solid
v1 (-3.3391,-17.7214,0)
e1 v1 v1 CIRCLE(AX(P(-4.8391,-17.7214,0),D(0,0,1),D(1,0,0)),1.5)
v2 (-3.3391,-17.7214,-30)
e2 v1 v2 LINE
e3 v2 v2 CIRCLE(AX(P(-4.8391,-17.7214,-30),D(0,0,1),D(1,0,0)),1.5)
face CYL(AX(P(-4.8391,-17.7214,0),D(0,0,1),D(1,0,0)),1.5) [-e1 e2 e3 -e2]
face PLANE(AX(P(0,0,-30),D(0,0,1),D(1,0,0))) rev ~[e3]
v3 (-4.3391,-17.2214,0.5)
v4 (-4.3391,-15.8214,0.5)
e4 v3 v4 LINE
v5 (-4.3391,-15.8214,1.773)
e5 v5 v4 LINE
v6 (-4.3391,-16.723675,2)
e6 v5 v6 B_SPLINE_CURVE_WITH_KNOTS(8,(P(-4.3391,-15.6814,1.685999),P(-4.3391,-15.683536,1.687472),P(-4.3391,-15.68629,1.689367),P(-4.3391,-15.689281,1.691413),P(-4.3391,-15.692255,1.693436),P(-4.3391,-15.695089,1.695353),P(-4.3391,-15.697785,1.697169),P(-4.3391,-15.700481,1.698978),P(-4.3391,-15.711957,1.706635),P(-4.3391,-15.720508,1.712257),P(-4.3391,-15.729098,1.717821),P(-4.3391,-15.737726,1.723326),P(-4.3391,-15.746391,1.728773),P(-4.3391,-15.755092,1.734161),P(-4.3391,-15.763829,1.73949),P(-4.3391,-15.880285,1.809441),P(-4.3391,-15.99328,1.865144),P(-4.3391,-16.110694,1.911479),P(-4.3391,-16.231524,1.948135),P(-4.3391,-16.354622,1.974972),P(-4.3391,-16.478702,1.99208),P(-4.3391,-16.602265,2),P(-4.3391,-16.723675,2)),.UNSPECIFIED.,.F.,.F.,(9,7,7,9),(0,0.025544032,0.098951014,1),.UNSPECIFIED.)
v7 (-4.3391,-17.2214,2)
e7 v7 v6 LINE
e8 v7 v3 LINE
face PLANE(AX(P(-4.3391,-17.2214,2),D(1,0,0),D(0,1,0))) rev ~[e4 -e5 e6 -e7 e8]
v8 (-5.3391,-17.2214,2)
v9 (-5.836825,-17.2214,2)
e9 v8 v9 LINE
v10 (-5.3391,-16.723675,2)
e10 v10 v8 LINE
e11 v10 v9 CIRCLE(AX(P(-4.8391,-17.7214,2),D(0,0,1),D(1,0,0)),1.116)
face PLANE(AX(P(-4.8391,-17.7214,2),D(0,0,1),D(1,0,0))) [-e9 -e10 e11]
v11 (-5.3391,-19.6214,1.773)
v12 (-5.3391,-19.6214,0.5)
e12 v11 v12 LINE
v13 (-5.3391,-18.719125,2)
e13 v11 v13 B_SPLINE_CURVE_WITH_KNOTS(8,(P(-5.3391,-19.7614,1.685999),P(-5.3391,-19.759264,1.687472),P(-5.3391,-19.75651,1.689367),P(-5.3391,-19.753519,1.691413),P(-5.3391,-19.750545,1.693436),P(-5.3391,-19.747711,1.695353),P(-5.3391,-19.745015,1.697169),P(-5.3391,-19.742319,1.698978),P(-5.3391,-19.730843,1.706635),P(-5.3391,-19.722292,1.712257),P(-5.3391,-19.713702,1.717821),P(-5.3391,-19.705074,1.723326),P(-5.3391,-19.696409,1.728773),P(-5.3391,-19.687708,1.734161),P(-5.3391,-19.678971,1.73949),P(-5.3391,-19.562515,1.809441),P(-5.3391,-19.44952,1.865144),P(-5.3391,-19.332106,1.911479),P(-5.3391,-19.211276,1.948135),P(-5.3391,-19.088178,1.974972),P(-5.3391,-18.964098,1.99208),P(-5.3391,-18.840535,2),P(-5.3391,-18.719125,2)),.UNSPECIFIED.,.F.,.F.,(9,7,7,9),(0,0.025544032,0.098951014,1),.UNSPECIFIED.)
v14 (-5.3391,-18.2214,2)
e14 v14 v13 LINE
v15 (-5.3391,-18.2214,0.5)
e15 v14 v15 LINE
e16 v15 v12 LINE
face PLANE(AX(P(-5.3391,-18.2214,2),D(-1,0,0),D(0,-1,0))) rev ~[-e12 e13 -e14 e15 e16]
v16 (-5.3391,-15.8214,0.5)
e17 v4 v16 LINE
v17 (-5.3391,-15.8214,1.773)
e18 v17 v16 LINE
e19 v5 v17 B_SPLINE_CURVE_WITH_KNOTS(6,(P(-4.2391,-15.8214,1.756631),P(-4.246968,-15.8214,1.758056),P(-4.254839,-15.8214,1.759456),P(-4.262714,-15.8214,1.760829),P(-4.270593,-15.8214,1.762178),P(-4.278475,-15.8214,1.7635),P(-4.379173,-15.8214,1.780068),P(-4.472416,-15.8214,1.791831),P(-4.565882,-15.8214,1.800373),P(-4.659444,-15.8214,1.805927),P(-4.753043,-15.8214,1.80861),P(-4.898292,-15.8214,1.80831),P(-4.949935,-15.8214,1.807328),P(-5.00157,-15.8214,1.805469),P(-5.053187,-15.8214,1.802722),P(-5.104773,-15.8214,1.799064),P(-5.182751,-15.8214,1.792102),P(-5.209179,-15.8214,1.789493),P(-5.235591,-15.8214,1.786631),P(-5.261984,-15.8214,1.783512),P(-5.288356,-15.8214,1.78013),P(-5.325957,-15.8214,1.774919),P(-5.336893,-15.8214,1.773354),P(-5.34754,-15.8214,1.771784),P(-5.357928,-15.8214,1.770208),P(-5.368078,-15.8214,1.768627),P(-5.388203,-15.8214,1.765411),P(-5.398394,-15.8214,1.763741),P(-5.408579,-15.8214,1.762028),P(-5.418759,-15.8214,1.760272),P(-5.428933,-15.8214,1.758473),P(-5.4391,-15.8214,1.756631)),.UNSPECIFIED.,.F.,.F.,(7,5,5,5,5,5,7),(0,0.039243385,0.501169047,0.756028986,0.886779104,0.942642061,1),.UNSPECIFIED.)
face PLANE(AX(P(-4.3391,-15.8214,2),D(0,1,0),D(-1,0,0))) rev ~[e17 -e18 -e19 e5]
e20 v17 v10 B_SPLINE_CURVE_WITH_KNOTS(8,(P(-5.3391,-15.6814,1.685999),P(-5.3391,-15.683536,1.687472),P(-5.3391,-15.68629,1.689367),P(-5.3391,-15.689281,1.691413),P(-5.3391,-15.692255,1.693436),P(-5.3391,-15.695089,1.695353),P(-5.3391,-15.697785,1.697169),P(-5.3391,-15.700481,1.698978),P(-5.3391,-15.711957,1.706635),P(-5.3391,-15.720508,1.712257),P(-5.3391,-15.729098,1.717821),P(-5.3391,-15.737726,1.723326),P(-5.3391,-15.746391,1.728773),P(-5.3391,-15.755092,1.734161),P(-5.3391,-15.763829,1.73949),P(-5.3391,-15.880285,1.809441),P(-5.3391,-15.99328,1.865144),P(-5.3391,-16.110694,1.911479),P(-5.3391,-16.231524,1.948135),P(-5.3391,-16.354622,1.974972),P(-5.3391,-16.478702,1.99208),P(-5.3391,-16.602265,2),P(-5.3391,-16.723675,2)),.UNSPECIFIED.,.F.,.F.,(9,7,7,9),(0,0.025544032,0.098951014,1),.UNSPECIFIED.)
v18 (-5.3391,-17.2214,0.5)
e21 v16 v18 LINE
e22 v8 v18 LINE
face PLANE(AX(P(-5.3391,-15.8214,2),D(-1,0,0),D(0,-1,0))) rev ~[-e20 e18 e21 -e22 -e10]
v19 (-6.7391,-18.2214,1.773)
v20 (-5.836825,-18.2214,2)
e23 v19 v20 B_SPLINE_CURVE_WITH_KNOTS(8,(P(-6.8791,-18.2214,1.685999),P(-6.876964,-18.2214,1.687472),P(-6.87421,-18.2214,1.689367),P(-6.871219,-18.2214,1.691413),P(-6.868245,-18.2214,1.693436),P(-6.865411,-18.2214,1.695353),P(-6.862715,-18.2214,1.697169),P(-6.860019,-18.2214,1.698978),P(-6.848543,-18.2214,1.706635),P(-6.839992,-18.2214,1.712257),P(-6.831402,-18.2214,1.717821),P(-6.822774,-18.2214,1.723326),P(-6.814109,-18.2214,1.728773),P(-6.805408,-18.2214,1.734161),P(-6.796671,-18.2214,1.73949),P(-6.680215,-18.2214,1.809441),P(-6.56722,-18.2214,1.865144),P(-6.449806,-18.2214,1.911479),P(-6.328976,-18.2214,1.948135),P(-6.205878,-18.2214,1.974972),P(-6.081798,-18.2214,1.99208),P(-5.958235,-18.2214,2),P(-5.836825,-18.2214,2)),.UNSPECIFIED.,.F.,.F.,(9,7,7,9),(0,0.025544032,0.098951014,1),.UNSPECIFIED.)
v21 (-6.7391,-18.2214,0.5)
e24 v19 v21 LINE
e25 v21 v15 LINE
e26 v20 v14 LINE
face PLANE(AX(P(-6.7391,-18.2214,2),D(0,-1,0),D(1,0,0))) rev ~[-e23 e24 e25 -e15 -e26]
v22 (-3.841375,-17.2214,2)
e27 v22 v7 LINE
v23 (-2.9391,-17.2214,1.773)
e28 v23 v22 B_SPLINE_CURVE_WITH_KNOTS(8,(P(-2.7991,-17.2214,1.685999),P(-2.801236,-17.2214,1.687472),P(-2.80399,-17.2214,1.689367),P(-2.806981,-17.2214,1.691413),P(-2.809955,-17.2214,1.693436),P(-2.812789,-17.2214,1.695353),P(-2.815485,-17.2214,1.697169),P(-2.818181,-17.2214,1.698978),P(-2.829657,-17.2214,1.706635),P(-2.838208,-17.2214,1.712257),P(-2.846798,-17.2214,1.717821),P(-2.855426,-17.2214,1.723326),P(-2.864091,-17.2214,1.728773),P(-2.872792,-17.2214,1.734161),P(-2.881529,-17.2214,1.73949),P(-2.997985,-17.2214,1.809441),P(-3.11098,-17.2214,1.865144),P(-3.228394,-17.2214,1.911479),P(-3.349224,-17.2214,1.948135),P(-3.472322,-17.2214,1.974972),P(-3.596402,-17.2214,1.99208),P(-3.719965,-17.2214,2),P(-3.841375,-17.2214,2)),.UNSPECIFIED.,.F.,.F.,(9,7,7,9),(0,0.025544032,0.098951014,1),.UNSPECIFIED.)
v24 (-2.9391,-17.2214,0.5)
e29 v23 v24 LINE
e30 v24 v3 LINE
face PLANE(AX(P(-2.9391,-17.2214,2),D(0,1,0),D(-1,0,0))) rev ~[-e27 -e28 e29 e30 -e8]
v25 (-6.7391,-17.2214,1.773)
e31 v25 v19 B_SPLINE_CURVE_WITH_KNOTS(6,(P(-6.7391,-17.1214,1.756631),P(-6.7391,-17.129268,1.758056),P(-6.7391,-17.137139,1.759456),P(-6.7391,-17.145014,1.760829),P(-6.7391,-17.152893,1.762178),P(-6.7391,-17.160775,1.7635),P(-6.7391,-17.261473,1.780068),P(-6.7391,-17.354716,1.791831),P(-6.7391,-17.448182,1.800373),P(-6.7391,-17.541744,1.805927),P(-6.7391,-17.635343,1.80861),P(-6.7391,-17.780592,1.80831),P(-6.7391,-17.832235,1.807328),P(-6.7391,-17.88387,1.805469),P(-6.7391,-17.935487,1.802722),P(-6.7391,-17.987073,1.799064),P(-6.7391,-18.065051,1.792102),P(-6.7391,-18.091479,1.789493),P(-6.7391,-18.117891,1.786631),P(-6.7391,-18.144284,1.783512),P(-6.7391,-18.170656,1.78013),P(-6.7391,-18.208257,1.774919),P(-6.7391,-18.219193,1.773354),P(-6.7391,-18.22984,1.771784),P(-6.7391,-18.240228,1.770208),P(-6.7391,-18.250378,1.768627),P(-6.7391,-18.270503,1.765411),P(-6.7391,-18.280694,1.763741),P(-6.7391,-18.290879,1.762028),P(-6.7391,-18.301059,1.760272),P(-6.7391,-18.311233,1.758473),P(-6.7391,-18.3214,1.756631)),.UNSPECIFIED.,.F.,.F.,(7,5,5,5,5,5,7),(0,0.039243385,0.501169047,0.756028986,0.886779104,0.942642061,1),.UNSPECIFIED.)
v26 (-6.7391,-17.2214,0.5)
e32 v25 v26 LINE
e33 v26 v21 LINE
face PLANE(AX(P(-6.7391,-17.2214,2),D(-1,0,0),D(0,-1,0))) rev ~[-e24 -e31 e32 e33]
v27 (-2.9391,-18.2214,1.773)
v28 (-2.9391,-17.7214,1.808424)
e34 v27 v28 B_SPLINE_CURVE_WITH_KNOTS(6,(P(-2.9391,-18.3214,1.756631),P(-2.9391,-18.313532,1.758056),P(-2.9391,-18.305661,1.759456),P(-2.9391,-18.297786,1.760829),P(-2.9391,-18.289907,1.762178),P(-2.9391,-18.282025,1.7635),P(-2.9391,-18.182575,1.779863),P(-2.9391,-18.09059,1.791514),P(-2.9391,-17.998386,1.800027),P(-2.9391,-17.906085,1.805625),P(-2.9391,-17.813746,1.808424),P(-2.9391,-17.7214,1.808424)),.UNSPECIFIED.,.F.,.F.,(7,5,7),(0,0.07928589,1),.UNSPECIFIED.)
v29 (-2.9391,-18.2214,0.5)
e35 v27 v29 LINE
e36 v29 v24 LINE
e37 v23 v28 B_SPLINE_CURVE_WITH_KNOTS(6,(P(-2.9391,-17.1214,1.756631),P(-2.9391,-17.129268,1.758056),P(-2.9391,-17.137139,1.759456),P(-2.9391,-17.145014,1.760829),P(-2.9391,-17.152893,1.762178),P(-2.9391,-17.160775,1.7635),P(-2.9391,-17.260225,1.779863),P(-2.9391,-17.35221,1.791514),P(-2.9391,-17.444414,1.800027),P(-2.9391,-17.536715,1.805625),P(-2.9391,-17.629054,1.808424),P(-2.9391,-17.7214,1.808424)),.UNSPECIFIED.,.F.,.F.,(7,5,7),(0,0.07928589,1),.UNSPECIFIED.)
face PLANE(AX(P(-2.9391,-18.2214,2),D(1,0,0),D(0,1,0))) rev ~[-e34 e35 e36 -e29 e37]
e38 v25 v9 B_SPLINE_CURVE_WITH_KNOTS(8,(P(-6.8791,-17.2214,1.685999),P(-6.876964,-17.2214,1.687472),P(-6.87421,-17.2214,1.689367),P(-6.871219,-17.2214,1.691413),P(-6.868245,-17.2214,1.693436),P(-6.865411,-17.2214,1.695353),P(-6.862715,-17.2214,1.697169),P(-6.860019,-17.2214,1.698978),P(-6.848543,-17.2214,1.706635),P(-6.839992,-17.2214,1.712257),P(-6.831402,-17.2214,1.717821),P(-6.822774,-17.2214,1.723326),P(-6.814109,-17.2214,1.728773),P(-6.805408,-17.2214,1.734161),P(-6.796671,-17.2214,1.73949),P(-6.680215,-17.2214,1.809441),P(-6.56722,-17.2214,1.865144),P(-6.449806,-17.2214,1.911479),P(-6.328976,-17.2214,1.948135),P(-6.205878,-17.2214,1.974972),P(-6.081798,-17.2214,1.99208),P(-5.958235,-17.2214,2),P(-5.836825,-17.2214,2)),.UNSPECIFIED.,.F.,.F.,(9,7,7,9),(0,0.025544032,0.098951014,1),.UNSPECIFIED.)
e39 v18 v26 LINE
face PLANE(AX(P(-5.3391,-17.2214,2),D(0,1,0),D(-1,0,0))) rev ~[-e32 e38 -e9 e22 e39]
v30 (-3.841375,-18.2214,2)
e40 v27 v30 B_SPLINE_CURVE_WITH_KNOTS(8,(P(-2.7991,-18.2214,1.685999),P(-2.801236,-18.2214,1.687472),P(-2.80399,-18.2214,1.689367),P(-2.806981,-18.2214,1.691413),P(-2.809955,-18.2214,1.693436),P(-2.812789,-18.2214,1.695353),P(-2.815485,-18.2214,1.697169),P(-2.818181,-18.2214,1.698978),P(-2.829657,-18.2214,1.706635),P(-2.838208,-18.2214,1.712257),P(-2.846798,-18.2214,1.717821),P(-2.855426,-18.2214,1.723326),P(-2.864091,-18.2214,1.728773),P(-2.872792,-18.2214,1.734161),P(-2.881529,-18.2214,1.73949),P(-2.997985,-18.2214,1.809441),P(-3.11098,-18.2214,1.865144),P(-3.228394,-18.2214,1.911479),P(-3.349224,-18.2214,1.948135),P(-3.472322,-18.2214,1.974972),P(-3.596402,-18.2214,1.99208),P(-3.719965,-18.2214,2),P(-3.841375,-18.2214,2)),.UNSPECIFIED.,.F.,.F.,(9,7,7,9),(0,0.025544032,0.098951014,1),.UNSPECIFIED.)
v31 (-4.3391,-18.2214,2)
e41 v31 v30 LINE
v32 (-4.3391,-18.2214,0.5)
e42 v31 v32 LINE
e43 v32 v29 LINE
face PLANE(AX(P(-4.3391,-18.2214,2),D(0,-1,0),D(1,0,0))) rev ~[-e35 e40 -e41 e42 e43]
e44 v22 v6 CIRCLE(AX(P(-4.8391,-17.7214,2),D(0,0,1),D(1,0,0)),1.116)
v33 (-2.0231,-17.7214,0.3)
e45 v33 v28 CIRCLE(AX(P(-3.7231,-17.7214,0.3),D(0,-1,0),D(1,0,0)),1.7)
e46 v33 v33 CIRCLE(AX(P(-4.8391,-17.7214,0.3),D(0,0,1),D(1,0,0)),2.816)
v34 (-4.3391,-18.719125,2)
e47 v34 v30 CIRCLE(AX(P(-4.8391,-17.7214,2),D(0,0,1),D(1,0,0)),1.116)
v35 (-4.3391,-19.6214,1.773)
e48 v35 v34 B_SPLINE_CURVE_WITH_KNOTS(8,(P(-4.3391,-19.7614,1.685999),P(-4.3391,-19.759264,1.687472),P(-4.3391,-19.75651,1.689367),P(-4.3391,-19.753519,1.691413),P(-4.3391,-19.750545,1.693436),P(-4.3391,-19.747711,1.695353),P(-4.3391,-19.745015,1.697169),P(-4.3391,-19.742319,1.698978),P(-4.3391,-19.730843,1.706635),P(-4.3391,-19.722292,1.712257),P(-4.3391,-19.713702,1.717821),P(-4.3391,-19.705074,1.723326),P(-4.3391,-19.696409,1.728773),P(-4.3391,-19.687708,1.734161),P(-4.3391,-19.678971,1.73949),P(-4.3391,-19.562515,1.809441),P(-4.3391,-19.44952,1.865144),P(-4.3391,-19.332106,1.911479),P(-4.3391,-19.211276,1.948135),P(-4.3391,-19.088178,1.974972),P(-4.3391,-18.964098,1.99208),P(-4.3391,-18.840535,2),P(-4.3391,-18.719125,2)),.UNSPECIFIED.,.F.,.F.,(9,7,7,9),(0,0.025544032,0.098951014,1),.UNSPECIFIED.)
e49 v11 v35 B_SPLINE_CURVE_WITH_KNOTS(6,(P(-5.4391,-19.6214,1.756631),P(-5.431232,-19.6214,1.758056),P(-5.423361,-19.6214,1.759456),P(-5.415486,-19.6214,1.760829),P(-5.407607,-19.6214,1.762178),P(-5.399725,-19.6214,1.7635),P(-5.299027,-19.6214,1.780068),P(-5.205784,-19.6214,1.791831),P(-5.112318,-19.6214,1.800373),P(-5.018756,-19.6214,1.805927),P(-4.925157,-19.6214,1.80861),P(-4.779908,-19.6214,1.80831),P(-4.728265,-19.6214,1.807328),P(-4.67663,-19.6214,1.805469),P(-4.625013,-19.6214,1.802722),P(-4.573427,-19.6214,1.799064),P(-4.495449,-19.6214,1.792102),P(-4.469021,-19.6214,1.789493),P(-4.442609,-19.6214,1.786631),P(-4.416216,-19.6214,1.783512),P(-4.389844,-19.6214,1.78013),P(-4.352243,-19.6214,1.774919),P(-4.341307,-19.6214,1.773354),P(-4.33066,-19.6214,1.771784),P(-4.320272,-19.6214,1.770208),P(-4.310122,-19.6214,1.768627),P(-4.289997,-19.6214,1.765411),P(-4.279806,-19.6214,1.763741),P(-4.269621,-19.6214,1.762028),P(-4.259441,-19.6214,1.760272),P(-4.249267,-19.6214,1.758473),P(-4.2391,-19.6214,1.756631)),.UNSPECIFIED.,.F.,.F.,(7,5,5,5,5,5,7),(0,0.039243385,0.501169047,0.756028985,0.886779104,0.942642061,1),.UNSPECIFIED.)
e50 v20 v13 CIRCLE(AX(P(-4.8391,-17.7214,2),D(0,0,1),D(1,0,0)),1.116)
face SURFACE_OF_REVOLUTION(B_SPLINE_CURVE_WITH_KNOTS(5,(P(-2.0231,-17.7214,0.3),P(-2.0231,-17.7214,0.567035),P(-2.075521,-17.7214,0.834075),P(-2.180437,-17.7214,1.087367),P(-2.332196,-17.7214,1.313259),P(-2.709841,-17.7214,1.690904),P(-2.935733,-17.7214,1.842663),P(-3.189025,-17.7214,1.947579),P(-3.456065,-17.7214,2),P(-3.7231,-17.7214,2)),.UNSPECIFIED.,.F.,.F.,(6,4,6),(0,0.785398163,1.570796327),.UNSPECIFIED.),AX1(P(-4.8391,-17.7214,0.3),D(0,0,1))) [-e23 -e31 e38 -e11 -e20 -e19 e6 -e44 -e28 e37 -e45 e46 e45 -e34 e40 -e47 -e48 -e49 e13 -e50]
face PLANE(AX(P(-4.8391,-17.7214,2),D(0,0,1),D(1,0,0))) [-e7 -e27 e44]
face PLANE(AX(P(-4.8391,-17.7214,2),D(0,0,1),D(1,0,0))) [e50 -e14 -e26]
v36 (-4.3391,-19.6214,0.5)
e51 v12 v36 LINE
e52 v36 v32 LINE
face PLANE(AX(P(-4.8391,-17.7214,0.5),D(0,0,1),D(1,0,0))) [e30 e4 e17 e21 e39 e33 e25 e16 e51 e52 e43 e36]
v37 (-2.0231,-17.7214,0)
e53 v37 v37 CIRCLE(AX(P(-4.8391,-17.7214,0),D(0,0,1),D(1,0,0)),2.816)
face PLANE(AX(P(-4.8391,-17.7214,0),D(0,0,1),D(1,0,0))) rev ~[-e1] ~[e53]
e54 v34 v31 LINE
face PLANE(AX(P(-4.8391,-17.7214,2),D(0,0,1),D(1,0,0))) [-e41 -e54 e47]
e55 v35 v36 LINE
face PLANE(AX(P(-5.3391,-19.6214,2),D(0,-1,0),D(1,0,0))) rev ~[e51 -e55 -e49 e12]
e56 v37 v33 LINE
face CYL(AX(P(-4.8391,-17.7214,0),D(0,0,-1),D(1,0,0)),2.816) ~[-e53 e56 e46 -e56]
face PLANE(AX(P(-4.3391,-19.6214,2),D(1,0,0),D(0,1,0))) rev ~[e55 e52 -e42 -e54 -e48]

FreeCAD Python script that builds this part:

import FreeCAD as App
import Part
import Sketcher
Q = App.Units.Quantity


def edges_at(feature, points):
    """Names of the edges that pass closest to the given points."""
    edges = feature.Shape.Edges
    near = lambda p: min(range(len(edges)), key=lambda i: edges[i].distToShape(Part.Vertex(*p))[0])
    return sorted({f"Edge{near(p) + 1}" for p in points})

doc = App.newDocument("Part")
body = doc.addObject("PartDesign::Body", "Body")

# Sketch on XY plane
sketch1 = body.newObject("Sketcher::SketchObject", "Sketch")
sketch1.AttachmentSupport = (doc.getObject("XY_Plane"), [""])
sketch1.MapMode = "FlatFace"
sketch1.addGeometry(Part.Circle(App.Vector(-4.8, -17.7, 0), App.Vector(0, 0, 1), 1.5), False)
sketch1.addConstraint([
    Sketcher.Constraint("Diameter", 0, Q("3 mm")),
    Sketcher.Constraint("DistanceX", 0, 3, -1, 1, Q("4.839 mm")),
    Sketcher.Constraint("DistanceY", 0, 3, -1, 1, Q("17.7214 mm")),
])
pad1 = body.newObject("PartDesign::Pad", "Pad")
pad1.Profile = sketch1
pad1.Length = 30
pad1.Reversed = True

# Sketch on XY plane
sketch2 = body.newObject("Sketcher::SketchObject", "Sketch001")
sketch2.AttachmentSupport = (doc.getObject("XY_Plane"), [""])
sketch2.MapMode = "FlatFace"
sketch2.addGeometry(Part.Circle(App.Vector(-4.8, -17.7, 0), App.Vector(0, 0, 1), 2.8), False)
sketch2.addConstraint([
    Sketcher.Constraint("Diameter", 0, Q("5.632 mm")),
    Sketcher.Constraint("DistanceX", 0, 3, -1, 1, Q("4.839 mm")),
    Sketcher.Constraint("DistanceY", 0, 3, -1, 1, Q("17.7214 mm")),
])
pad2 = body.newObject("PartDesign::Pad", "Pad001")
pad2.Profile = sketch2
pad2.Length = 2
doc.recompute()

fillet = body.newObject("PartDesign::Fillet", "Fillet")
fillet.Base = (pad2, edges_at(pad2, [(-7.655, -17.721, 2)]))
fillet.Radius = 1.7

# Sketch on XY plane
sketch3 = body.newObject("Sketcher::SketchObject", "Sketch002")
sketch3.AttachmentSupport = (doc.getObject("XY_Plane"), [""])
sketch3.MapMode = "FlatFace"
sketch3.AttachmentOffset = App.Placement(App.Vector(0, 0, 2), App.Rotation())
sketch3.addGeometry([
    Part.LineSegment(App.Vector(-5.3, -18.2, 0), App.Vector(-5.3, -19.6, 0)),  # 0
    Part.LineSegment(App.Vector(-5.3, -19.6, 0), App.Vector(-4.3, -19.6, 0)),  # 1
    Part.LineSegment(App.Vector(-4.3, -19.6, 0), App.Vector(-4.3, -18.2, 0)),  # 2
    Part.LineSegment(App.Vector(-4.3, -18.2, 0), App.Vector(-2.9, -18.2, 0)),  # 3
    Part.LineSegment(App.Vector(-2.9, -18.2, 0), App.Vector(-2.9, -17.2, 0)),  # 4
    Part.LineSegment(App.Vector(-2.9, -17.2, 0), App.Vector(-4.3, -17.2, 0)),  # 5
    Part.LineSegment(App.Vector(-4.3, -17.2, 0), App.Vector(-4.3, -15.8, 0)),  # 6
    Part.LineSegment(App.Vector(-4.3, -15.8, 0), App.Vector(-5.3, -15.8, 0)),  # 7
    Part.LineSegment(App.Vector(-5.3, -15.8, 0), App.Vector(-5.3, -17.2, 0)),  # 8
    Part.LineSegment(App.Vector(-5.3, -17.2, 0), App.Vector(-6.7, -17.2, 0)),  # 9
    Part.LineSegment(App.Vector(-6.7, -17.2, 0), App.Vector(-6.7, -18.2, 0)),  # 10
    Part.LineSegment(App.Vector(-6.7, -18.2, 0), App.Vector(-5.3, -18.2, 0)),  # 11
], False)
sketch3.addConstraint([
    Sketcher.Constraint("Coincident", 0, 2, 1, 1),
    Sketcher.Constraint("Coincident", 1, 2, 2, 1),
    Sketcher.Constraint("Coincident", 2, 2, 3, 1),
    Sketcher.Constraint("Coincident", 3, 2, 4, 1),
    Sketcher.Constraint("Coincident", 4, 2, 5, 1),
    Sketcher.Constraint("Coincident", 5, 2, 6, 1),
    Sketcher.Constraint("Coincident", 6, 2, 7, 1),
    Sketcher.Constraint("Coincident", 7, 2, 8, 1),
    Sketcher.Constraint("Coincident", 8, 2, 9, 1),
    Sketcher.Constraint("Coincident", 9, 2, 10, 1),
    Sketcher.Constraint("Coincident", 10, 2, 11, 1),
    Sketcher.Constraint("Coincident", 11, 2, 0, 1),
    Sketcher.Constraint("Vertical", 0),
    Sketcher.Constraint("Horizontal", 1),
    Sketcher.Constraint("Vertical", 2),
    Sketcher.Constraint("Horizontal", 3),
    Sketcher.Constraint("Vertical", 4),
    Sketcher.Constraint("Horizontal", 5),
    Sketcher.Constraint("Vertical", 6),
    Sketcher.Constraint("Horizontal", 7),
    Sketcher.Constraint("Vertical", 8),
    Sketcher.Constraint("Horizontal", 9),
    Sketcher.Constraint("Vertical", 10),
    Sketcher.Constraint("Horizontal", 11),
    Sketcher.Constraint("Horizontal", 5, 2, 8, 2),
    Sketcher.Constraint("Horizontal", 3, 2, 10, 2),
    Sketcher.Constraint("Vertical", 2, 2, 5, 2),
    Sketcher.Constraint("Vertical", 0, 2, 7, 2),
    Sketcher.Constraint("Equal", 5, 9),
    Sketcher.Constraint("Equal", 11, 0),
    Sketcher.Constraint("Equal", 7, 4),
    Sketcher.Constraint("Equal", 2, 6),
    Sketcher.Constraint("DistanceX", 1, 1, 1, 2, Q("1 mm")),
    Sketcher.Constraint("DistanceX", 3, 1, 3, 2, Q("1.4 mm")),
    Sketcher.Constraint("DistanceX", 0, 2, -1, 1, Q("5.339 mm")),
    Sketcher.Constraint("DistanceY", 0, 2, -1, 1, Q("19.6214 mm")),
])
pocket1 = body.newObject("PartDesign::Pocket", "Pocket")
pocket1.Profile = sketch3
pocket1.Length = 1.5

doc.recompute()
